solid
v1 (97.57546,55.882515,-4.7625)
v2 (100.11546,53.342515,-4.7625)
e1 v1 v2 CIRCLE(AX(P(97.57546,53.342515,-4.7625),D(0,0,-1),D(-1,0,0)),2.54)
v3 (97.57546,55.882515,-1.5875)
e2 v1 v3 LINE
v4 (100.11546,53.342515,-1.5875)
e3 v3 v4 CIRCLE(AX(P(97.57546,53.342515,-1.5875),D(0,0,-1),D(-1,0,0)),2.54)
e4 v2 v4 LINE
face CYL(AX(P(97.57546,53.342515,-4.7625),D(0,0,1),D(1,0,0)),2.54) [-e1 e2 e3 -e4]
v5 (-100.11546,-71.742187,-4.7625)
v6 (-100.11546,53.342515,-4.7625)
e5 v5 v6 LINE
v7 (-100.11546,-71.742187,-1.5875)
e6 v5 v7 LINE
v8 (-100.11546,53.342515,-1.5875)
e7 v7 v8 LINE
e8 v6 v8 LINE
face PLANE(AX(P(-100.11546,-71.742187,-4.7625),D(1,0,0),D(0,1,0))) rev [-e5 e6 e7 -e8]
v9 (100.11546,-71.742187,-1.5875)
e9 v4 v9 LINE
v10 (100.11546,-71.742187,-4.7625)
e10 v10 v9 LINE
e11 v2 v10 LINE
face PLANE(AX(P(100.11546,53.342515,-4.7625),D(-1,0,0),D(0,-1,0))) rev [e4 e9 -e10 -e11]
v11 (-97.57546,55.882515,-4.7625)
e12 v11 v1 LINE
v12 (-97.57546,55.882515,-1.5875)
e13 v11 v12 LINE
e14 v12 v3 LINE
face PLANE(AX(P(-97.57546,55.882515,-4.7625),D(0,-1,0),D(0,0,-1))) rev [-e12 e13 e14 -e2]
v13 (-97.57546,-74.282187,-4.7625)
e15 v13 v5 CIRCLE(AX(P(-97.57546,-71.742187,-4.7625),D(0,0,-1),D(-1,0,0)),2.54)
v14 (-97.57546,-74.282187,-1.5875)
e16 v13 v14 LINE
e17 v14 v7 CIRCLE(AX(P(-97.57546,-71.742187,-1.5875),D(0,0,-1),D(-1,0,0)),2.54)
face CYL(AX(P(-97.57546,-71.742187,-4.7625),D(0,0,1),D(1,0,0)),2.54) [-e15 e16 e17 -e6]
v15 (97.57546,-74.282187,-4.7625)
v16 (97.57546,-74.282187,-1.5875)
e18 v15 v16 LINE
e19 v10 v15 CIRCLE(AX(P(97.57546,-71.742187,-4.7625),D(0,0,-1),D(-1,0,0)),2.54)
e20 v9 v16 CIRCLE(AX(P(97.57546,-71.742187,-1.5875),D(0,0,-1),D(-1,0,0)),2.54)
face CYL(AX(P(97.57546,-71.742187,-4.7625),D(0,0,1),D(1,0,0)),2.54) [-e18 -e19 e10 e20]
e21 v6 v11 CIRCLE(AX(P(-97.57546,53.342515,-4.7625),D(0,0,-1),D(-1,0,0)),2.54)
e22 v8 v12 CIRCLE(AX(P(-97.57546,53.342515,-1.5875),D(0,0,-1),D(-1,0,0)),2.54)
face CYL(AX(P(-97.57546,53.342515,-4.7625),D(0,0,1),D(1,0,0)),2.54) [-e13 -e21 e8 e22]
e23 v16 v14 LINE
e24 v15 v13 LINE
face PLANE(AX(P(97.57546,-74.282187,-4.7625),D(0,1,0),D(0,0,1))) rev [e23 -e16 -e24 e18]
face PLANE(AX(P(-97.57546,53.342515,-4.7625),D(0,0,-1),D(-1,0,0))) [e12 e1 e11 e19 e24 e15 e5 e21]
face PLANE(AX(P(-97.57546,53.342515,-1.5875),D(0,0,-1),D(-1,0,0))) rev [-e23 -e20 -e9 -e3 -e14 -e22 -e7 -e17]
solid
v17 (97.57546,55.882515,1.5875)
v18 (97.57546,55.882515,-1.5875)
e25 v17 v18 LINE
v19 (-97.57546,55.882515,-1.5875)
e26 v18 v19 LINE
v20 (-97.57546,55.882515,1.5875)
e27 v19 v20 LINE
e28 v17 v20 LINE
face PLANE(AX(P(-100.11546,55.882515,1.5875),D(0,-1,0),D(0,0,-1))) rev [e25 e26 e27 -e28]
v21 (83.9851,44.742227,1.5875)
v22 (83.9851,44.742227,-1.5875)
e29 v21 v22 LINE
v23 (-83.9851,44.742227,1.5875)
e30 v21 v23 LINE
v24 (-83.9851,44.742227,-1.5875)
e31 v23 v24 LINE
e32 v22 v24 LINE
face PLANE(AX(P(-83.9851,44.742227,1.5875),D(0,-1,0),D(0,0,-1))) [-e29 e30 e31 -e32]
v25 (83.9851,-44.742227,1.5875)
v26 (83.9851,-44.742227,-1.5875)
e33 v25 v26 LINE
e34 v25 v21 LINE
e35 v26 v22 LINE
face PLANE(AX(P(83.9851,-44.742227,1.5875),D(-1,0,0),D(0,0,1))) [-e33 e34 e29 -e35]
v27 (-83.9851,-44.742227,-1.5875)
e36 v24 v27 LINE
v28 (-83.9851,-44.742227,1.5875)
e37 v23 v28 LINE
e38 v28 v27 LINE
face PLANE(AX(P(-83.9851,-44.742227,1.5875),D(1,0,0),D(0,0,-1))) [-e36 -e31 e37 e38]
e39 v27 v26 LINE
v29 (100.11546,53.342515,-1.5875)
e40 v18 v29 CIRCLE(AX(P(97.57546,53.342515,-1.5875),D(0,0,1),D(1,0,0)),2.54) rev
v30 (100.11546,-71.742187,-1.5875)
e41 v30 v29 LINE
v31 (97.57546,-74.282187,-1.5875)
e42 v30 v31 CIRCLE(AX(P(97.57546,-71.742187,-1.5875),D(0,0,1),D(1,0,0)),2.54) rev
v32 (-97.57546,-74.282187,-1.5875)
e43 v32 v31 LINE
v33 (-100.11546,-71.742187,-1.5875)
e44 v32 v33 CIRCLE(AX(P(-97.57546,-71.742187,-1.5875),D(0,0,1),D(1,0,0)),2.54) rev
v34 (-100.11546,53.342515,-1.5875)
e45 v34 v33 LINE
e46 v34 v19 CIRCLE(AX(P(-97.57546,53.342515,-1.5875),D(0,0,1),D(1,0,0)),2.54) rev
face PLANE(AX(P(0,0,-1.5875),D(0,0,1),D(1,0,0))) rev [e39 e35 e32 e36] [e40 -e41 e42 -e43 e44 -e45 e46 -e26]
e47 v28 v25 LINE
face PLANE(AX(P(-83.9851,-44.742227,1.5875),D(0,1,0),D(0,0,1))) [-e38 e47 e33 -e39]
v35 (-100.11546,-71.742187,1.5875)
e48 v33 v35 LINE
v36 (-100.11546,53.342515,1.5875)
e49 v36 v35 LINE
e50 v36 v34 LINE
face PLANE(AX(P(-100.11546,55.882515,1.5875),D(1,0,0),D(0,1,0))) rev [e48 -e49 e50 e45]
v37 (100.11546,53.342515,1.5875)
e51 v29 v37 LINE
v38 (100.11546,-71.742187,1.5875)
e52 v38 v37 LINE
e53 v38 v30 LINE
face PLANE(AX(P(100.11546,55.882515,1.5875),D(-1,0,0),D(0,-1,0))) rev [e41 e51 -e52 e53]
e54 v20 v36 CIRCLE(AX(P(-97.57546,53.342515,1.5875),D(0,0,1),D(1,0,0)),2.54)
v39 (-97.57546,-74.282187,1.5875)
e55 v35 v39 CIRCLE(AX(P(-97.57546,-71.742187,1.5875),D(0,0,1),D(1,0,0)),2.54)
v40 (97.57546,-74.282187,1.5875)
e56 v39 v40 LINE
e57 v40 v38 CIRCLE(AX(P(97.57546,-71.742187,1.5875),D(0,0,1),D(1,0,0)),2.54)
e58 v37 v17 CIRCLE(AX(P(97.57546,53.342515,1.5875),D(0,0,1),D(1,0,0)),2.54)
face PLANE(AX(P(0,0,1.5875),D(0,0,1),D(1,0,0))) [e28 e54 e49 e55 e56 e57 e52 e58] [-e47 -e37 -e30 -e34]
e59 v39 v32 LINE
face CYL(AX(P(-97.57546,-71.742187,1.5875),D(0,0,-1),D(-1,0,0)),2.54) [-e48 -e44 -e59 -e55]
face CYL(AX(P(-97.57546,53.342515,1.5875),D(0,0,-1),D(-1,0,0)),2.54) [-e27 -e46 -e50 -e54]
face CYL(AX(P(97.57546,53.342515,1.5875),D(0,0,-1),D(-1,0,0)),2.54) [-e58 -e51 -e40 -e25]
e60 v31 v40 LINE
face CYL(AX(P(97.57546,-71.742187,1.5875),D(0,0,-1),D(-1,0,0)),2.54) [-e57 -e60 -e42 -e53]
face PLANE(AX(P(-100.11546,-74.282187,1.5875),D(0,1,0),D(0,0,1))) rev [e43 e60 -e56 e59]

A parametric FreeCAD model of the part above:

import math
import FreeCAD as App
import Part
import Sketcher
from FreeCAD import Vector
Q = App.Units.Quantity


def edges_at(feature, points):
    """Names of the edges that pass closest to the given points."""
    edges = feature.Shape.Edges
    near = lambda p: min(range(len(edges)), key=lambda i: edges[i].distToShape(Part.Vertex(*p))[0])
    return sorted({f"Edge{near(p) + 1}" for p in points})

doc = App.newDocument("Part")
body = doc.addObject("PartDesign::Body", "Body")

sketch1 = doc.addObject("Sketcher::SketchObject", "Sketch")
body.addObject(sketch1)
sketch1.AttachmentSupport = (doc.XY_Plane, [""])
sketch1.MapMode = "FlatFace"
sketch1.addGeometry(Part.LineSegment(Vector(-100, 56, 0), Vector(-100, -74, 0)), False)
sketch1.addGeometry(Part.LineSegment(Vector(-100, -74, 0), Vector(100, -74, 0)), False)
sketch1.addGeometry(Part.LineSegment(Vector(100, -74, 0), Vector(100, 56, 0)), False)
sketch1.addGeometry(Part.LineSegment(Vector(100, 56, 0), Vector(-100, 56, 0)), False)
sketch1.addGeometry(Part.LineSegment(Vector(84, -45, 0), Vector(-84, -45, 0)), False)
sketch1.addGeometry(Part.LineSegment(Vector(-84, -45, 0), Vector(-84, 45, 0)), False)
sketch1.addGeometry(Part.LineSegment(Vector(-84, 45, 0), Vector(84, 45, 0)), False)
sketch1.addGeometry(Part.LineSegment(Vector(84, 45, 0), Vector(84, -45, 0)), False)
sketch1.addConstraint(Sketcher.Constraint("Coincident", 0, 2, 1, 1))
sketch1.addConstraint(Sketcher.Constraint("Coincident", 1, 2, 2, 1))
sketch1.addConstraint(Sketcher.Constraint("Coincident", 2, 2, 3, 1))
sketch1.addConstraint(Sketcher.Constraint("Coincident", 3, 2, 0, 1))
sketch1.addConstraint(Sketcher.Constraint("Coincident", 4, 2, 5, 1))
sketch1.addConstraint(Sketcher.Constraint("Coincident", 5, 2, 6, 1))
sketch1.addConstraint(Sketcher.Constraint("Coincident", 6, 2, 7, 1))
sketch1.addConstraint(Sketcher.Constraint("Coincident", 7, 2, 4, 1))
sketch1.addConstraint(Sketcher.Constraint("Vertical", 0))
sketch1.addConstraint(Sketcher.Constraint("Horizontal", 1))
sketch1.addConstraint(Sketcher.Constraint("Vertical", 2))
sketch1.addConstraint(Sketcher.Constraint("Horizontal", 3))
sketch1.addConstraint(Sketcher.Constraint("Horizontal", 4))
sketch1.addConstraint(Sketcher.Constraint("Vertical", 5))
sketch1.addConstraint(Sketcher.Constraint("Horizontal", 6))
sketch1.addConstraint(Sketcher.Constraint("Vertical", 7))
sketch1.addConstraint(Sketcher.Constraint("Symmetric", 4, 2, 6, 2, -1, 1))
sketch1.addConstraint(Sketcher.Constraint("DistanceX", 4, 2, 4, 1, Q("6.613 in")))
sketch1.addConstraint(Sketcher.Constraint("DistanceX", 1, 1, 1, 2, 200.230919))
sketch1.addConstraint(Sketcher.Constraint("DistanceY", 0, 2, 0, 1, 130.164702))
sketch1.addConstraint(Sketcher.Constraint("DistanceY", 5, 1, 5, 2, 89.484454))
sketch1.addConstraint(Sketcher.Constraint("DistanceX", 0, 2, -1, 1, 100.11546))
sketch1.addConstraint(Sketcher.Constraint("DistanceY", 0, 2, 4, 2, 29.53996))
pad1 = doc.addObject("PartDesign::Pad", "Pad")
body.addObject(pad1)
pad1.Profile = sketch1
pad1.Length = Q("0.125 in")
pad1.Midplane = True
doc.recompute()

fillet = doc.addObject("PartDesign::Fillet", "Fillet")
body.addObject(fillet)
fillet.Base = (pad1, edges_at(pad1, [
    (-100.115, 55.883, 0),
    (100.115, 55.883, 0),
    (100.115, -74.282, 0),
    (-100.115, -74.282, 0),
]))
fillet.Radius = Q("0.1 in")
body2 = doc.addObject("PartDesign::Body", "Body001")

sketch2 = doc.addObject("Sketcher::SketchObject", "Sketch001")
body2.addObject(sketch2)
sketch2.AttachmentSupport = (doc.getObject("XY_Plane001"), [""])
sketch2.MapMode = "FlatFace"
sketch2.AttachmentOffset = App.Placement(Vector(0, 0, -0.0625 * 25.4), App.Rotation())
sketch2.addGeometry(Part.LineSegment(Vector(-100.1, -71.7, 0), Vector(-100.1, 53.3, 0)), False)
sketch2.addGeometry(Part.ArcOfCircle(Part.Circle(Vector(-97.6, 53.3, 0), Vector(0, 0, 1), 2.5), math.radians(90), math.radians(180)), False)
sketch2.addGeometry(Part.LineSegment(Vector(-97.6, 55.9, 0), Vector(97.6, 55.9, 0)), False)
sketch2.addGeometry(Part.ArcOfCircle(Part.Circle(Vector(97.6, 53.3, 0), Vector(0, 0, 1), 2.5), math.radians(0), math.radians(90)), False)
sketch2.addGeometry(Part.LineSegment(Vector(100.1, 53.3, 0), Vector(100.1, -71.7, 0)), False)
sketch2.addGeometry(Part.ArcOfCircle(Part.Circle(Vector(97.6, -71.7, 0), Vector(0, 0, 1), 2.5), math.radians(-90), math.radians(0)), False)
sketch2.addGeometry(Part.LineSegment(Vector(97.6, -74.3, 0), Vector(-97.6, -74.3, 0)), False)
sketch2.addGeometry(Part.ArcOfCircle(Part.Circle(Vector(-97.6, -71.7, 0), Vector(0, 0, 1), 2.5), math.radians(-180), math.radians(-90)), False)
sketch2.addConstraint(Sketcher.Constraint("Tangent", 0, 2, 1, 2))
sketch2.addConstraint(Sketcher.Constraint("Tangent", 1, 1, 2, 1))
sketch2.addConstraint(Sketcher.Constraint("Tangent", 2, 2, 3, 2))
sketch2.addConstraint(Sketcher.Constraint("Tangent", 3, 1, 4, 1))
sketch2.addConstraint(Sketcher.Constraint("Tangent", 4, 2, 5, 2))
sketch2.addConstraint(Sketcher.Constraint("Tangent", 5, 1, 6, 1))
sketch2.addConstraint(Sketcher.Constraint("Tangent", 6, 2, 7, 2))
sketch2.addConstraint(Sketcher.Constraint("Tangent", 7, 1, 0, 1))
sketch2.addConstraint(Sketcher.Constraint("Vertical", 0))
sketch2.addConstraint(Sketcher.Constraint("Horizontal", 2))
sketch2.addConstraint(Sketcher.Constraint("Vertical", 4))
sketch2.addConstraint(Sketcher.Constraint("Horizontal", 6))
sketch2.addConstraint(Sketcher.Constraint("Equal", 1, 3))
sketch2.addConstraint(Sketcher.Constraint("Equal", 3, 5))
sketch2.addConstraint(Sketcher.Constraint("Equal", 5, 7))
sketch2.addConstraint(Sketcher.Constraint("Radius", 1, Q("0.1 in")))
sketch2.addConstraint(Sketcher.Constraint("DistanceX", 2, 1, 2, 2, 195.150919))
sketch2.addConstraint(Sketcher.Constraint("DistanceY", 0, 1, 0, 2, 125.084702))
sketch2.addConstraint(Sketcher.Constraint("DistanceX", 1, 3, -1, 1, 97.57546))
sketch2.addConstraint(Sketcher.Constraint("DistanceY", -1, 1, 1, 3, 53.342515))
pad2 = doc.addObject("PartDesign::Pad", "Pad001")
body2.addObject(pad2)
pad2.Profile = sketch2
pad2.Length = Q("0.125 in")
pad2.Reversed = True

doc.recompute()
